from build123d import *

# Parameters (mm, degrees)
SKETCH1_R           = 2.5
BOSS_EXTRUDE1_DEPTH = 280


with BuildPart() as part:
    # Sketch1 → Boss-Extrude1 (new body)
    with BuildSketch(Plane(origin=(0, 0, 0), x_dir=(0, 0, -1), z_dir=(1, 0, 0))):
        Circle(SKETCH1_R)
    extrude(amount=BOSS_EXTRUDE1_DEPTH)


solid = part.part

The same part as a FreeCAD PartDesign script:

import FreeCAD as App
import Part
import Sketcher
from FreeCAD import Vector
Q = App.Units.Quantity

doc = App.newDocument("Part")
params = doc.addObject("Spreadsheet::Sheet", "Params")
for row, (alias, value) in enumerate([
    ("sketch1_diameter", "5 mm"),
    ("pad1_length", "280 mm"),
], start=1):
    params.set(f"A{row}", alias)
    params.set(f"B{row}", "=" + value)
    params.setAlias(f"B{row}", alias)

body = doc.addObject("PartDesign::Body", "Body")

sketch1 = body.newObject("Sketcher::SketchObject", "Sketch")
sketch1.AttachmentSupport = (doc.getObject("YZ_Plane"), [""])
sketch1.MapMode = "FlatFace"
sketch1.addGeometry(Part.Circle(Vector(0, 0, 0), Vector(0, 0, 1), 2.5), False)
sketch1.addConstraint([
    Sketcher.Constraint("Coincident", 0, 3, -1, 1),
    Sketcher.Constraint("Diameter", 0, Q("5 mm")),
])
sketch1.setExpression("Constraints[1]", "Params.sketch1_diameter")
pad1 = body.newObject("PartDesign::Pad", "Pad")
pad1.Profile = sketch1
pad1.setExpression("Length", "Params.pad1_length")

doc.recompute()
